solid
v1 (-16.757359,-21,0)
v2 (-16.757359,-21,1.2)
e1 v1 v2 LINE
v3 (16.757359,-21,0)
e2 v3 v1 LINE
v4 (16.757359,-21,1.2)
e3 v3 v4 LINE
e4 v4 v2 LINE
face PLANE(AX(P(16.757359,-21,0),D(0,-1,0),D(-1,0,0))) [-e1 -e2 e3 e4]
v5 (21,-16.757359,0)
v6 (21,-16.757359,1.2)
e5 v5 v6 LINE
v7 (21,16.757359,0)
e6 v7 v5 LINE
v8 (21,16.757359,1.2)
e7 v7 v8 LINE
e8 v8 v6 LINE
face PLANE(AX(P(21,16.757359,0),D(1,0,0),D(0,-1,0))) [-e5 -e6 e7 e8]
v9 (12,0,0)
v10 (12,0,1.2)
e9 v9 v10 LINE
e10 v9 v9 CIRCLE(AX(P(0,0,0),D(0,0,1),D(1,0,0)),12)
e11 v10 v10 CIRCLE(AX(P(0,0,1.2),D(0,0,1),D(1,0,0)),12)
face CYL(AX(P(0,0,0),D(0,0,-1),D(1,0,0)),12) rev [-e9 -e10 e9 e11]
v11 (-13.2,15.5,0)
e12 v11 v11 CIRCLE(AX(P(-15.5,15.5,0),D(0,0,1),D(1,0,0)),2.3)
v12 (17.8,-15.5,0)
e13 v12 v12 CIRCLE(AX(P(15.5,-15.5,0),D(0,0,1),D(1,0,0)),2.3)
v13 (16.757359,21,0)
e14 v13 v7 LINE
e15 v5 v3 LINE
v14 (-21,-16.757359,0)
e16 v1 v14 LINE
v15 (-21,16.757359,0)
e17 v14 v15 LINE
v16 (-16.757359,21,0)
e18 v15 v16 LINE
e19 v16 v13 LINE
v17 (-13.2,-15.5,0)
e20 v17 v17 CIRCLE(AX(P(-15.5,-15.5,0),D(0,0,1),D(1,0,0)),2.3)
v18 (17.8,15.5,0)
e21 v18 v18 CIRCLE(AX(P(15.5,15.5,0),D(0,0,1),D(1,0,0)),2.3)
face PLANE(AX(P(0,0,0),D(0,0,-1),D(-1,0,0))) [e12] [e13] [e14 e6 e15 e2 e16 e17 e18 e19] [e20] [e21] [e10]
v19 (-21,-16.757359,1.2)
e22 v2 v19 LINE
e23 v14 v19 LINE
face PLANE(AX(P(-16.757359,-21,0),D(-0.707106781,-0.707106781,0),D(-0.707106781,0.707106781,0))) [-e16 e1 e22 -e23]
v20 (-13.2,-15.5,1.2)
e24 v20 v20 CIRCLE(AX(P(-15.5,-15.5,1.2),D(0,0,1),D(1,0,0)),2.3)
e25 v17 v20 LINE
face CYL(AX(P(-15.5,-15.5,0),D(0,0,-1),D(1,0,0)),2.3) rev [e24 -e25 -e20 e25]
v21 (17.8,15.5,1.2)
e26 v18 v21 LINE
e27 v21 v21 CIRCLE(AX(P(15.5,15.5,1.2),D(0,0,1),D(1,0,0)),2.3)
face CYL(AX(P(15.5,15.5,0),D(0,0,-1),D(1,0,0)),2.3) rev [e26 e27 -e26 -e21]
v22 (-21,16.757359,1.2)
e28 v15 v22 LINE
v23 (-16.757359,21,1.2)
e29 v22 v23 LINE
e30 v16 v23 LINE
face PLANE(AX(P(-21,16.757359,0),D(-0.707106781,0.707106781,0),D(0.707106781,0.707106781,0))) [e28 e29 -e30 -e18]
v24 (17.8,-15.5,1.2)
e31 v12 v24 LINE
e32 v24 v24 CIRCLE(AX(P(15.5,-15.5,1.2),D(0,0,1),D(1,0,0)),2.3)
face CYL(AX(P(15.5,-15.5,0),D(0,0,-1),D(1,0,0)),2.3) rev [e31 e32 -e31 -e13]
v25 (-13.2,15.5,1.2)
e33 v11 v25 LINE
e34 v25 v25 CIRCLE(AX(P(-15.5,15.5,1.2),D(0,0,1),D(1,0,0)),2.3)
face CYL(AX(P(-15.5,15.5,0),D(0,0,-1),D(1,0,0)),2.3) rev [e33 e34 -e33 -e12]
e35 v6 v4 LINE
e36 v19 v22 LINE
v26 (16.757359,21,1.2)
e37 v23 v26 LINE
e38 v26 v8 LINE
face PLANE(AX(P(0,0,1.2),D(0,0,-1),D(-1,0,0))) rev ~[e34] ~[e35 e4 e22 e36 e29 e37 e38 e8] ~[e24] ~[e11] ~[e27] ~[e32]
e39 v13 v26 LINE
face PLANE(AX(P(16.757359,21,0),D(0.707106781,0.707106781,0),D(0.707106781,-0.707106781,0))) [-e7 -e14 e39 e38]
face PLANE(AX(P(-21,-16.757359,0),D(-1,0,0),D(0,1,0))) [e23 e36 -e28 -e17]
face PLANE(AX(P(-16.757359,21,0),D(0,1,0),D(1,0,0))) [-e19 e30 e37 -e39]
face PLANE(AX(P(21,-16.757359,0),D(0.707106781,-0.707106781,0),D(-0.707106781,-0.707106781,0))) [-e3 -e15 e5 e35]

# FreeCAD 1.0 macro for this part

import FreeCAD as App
import Part
import Sketcher

V = App.Vector
Q = App.Units.Quantity

doc = App.newDocument("Part")
params = doc.addObject("Spreadsheet::Sheet", "Params")
for row, (alias, value) in enumerate([
    ("sketch1_diameter", "24 mm"),
    ("sketch1_diameter2", "4.6 mm"),
    ("sketch1_length", "6 mm"),
    ("pad1_length", "1.2 mm"),
], start=1):
    params.set(f"A{row}", alias)
    params.set(f"B{row}", "=" + value)
    params.setAlias(f"B{row}", alias)

body = doc.addObject("PartDesign::Body", "Body")

sketch1 = doc.addObject("Sketcher::SketchObject", "Sketch")
body.addObject(sketch1)
sketch1.AttachmentSupport = (doc.XY_Plane, [""])
sketch1.MapMode = "FlatFace"
sketch1.addGeometry(Part.LineSegment(V(16.8, 21, 0), V(-16.8, 21, 0)), False)
sketch1.addGeometry(Part.LineSegment(V(-16.8, 21, 0), V(-21, 16.8, 0)), False)
sketch1.addGeometry(Part.LineSegment(V(-21, 16.8, 0), V(-21, -16.8, 0)), False)
sketch1.addGeometry(Part.LineSegment(V(-21, -16.8, 0), V(-16.8, -21, 0)), False)
sketch1.addGeometry(Part.LineSegment(V(-16.8, -21, 0), V(16.8, -21, 0)), False)
sketch1.addGeometry(Part.LineSegment(V(16.8, -21, 0), V(21, -16.8, 0)), False)
sketch1.addGeometry(Part.LineSegment(V(21, -16.8, 0), V(21, 16.8, 0)), False)
sketch1.addGeometry(Part.LineSegment(V(21, 16.8, 0), V(16.8, 21, 0)), False)
sketch1.addGeometry(Part.Circle(V(15.5, -15.5, 0), V(0, 0, 1), 2.3), False)
sketch1.addGeometry(Part.Circle(V(-15.5, -15.5, 0), V(0, 0, 1), 2.3), False)
sketch1.addGeometry(Part.Circle(V(15.5, 15.5, 0), V(0, 0, 1), 2.3), False)
sketch1.addGeometry(Part.Circle(V(0, 0, 0), V(0, 0, 1), 12), False)
sketch1.addGeometry(Part.Circle(V(-15.5, 15.5, 0), V(0, 0, 1), 2.3), False)
sketch1.addConstraint(Sketcher.Constraint("Coincident", 0, 2, 1, 1))
sketch1.addConstraint(Sketcher.Constraint("Coincident", 1, 2, 2, 1))
sketch1.addConstraint(Sketcher.Constraint("Coincident", 2, 2, 3, 1))
sketch1.addConstraint(Sketcher.Constraint("Coincident", 3, 2, 4, 1))
sketch1.addConstraint(Sketcher.Constraint("Coincident", 4, 2, 5, 1))
sketch1.addConstraint(Sketcher.Constraint("Coincident", 5, 2, 6, 1))
sketch1.addConstraint(Sketcher.Constraint("Coincident", 6, 2, 7, 1))
sketch1.addConstraint(Sketcher.Constraint("Coincident", 7, 2, 0, 1))
sketch1.addConstraint(Sketcher.Constraint("Horizontal", 0))
sketch1.addConstraint(Sketcher.Constraint("Vertical", 2))
sketch1.addConstraint(Sketcher.Constraint("Horizontal", 4))
sketch1.addConstraint(Sketcher.Constraint("Vertical", 6))
sketch1.addConstraint(Sketcher.Constraint("Coincident", 11, 3, -1, 1))
sketch1.addConstraint(Sketcher.Constraint("Equal", 8, 9))
sketch1.addConstraint(Sketcher.Constraint("Equal", 9, 10))
sketch1.addConstraint(Sketcher.Constraint("Equal", 10, 12))
sketch1.addConstraint(Sketcher.Constraint("Symmetric", 9, 3, 10, 3, -1, 1))
sketch1.addConstraint(Sketcher.Constraint("Symmetric", 8, 3, 12, 3, -1, 1))
sketch1.addConstraint(Sketcher.Constraint("Symmetric", 0, 2, 4, 2, -1, 1))
sketch1.addConstraint(Sketcher.Constraint("Symmetric", 1, 2, 5, 2, -1, 1))
sketch1.addConstraint(Sketcher.Constraint("Symmetric", 8, 3, 9, 3, -2))
sketch1.addConstraint(Sketcher.Constraint("Perpendicular", 1, 3))
sketch1.addConstraint(Sketcher.Constraint("Perpendicular", 5, 7))
sketch1.addConstraint(Sketcher.Constraint("Horizontal", 2, 2, 5, 2))
sketch1.addConstraint(Sketcher.Constraint("Horizontal", 1, 2, 6, 2))
sketch1.addConstraint(Sketcher.Constraint("Vertical", 0, 2, 3, 2))
sketch1.addConstraint(Sketcher.Constraint("Equal", 4, 2))
sketch1.addConstraint(Sketcher.Constraint("Diameter", 11, Q("24 mm")))
sketch1.addConstraint(Sketcher.Constraint("Diameter", 8, Q("4.6 mm")))
sketch1.addConstraint(Sketcher.Constraint("Distance", 1, Q("6 mm")))
sketch1.addConstraint(Sketcher.Constraint("DistanceY", -1, 1, 0, 2, Q("21 mm")))
sketch1.addConstraint(Sketcher.Constraint("DistanceX", 9, 3, 8, 3, Q("31 mm")))
sketch1.addConstraint(Sketcher.Constraint("DistanceY", 8, 3, 10, 3, Q("31 mm")))
sketch1.setExpression("Constraints[27]", "Params.sketch1_diameter")
sketch1.setExpression("Constraints[28]", "Params.sketch1_diameter2")
sketch1.setExpression("Constraints[29]", "Params.sketch1_length")
pad1 = doc.addObject("PartDesign::Pad", "Pad")
body.addObject(pad1)
pad1.Profile = sketch1
pad1.setExpression("Length", "Params.pad1_length")

doc.recompute()
